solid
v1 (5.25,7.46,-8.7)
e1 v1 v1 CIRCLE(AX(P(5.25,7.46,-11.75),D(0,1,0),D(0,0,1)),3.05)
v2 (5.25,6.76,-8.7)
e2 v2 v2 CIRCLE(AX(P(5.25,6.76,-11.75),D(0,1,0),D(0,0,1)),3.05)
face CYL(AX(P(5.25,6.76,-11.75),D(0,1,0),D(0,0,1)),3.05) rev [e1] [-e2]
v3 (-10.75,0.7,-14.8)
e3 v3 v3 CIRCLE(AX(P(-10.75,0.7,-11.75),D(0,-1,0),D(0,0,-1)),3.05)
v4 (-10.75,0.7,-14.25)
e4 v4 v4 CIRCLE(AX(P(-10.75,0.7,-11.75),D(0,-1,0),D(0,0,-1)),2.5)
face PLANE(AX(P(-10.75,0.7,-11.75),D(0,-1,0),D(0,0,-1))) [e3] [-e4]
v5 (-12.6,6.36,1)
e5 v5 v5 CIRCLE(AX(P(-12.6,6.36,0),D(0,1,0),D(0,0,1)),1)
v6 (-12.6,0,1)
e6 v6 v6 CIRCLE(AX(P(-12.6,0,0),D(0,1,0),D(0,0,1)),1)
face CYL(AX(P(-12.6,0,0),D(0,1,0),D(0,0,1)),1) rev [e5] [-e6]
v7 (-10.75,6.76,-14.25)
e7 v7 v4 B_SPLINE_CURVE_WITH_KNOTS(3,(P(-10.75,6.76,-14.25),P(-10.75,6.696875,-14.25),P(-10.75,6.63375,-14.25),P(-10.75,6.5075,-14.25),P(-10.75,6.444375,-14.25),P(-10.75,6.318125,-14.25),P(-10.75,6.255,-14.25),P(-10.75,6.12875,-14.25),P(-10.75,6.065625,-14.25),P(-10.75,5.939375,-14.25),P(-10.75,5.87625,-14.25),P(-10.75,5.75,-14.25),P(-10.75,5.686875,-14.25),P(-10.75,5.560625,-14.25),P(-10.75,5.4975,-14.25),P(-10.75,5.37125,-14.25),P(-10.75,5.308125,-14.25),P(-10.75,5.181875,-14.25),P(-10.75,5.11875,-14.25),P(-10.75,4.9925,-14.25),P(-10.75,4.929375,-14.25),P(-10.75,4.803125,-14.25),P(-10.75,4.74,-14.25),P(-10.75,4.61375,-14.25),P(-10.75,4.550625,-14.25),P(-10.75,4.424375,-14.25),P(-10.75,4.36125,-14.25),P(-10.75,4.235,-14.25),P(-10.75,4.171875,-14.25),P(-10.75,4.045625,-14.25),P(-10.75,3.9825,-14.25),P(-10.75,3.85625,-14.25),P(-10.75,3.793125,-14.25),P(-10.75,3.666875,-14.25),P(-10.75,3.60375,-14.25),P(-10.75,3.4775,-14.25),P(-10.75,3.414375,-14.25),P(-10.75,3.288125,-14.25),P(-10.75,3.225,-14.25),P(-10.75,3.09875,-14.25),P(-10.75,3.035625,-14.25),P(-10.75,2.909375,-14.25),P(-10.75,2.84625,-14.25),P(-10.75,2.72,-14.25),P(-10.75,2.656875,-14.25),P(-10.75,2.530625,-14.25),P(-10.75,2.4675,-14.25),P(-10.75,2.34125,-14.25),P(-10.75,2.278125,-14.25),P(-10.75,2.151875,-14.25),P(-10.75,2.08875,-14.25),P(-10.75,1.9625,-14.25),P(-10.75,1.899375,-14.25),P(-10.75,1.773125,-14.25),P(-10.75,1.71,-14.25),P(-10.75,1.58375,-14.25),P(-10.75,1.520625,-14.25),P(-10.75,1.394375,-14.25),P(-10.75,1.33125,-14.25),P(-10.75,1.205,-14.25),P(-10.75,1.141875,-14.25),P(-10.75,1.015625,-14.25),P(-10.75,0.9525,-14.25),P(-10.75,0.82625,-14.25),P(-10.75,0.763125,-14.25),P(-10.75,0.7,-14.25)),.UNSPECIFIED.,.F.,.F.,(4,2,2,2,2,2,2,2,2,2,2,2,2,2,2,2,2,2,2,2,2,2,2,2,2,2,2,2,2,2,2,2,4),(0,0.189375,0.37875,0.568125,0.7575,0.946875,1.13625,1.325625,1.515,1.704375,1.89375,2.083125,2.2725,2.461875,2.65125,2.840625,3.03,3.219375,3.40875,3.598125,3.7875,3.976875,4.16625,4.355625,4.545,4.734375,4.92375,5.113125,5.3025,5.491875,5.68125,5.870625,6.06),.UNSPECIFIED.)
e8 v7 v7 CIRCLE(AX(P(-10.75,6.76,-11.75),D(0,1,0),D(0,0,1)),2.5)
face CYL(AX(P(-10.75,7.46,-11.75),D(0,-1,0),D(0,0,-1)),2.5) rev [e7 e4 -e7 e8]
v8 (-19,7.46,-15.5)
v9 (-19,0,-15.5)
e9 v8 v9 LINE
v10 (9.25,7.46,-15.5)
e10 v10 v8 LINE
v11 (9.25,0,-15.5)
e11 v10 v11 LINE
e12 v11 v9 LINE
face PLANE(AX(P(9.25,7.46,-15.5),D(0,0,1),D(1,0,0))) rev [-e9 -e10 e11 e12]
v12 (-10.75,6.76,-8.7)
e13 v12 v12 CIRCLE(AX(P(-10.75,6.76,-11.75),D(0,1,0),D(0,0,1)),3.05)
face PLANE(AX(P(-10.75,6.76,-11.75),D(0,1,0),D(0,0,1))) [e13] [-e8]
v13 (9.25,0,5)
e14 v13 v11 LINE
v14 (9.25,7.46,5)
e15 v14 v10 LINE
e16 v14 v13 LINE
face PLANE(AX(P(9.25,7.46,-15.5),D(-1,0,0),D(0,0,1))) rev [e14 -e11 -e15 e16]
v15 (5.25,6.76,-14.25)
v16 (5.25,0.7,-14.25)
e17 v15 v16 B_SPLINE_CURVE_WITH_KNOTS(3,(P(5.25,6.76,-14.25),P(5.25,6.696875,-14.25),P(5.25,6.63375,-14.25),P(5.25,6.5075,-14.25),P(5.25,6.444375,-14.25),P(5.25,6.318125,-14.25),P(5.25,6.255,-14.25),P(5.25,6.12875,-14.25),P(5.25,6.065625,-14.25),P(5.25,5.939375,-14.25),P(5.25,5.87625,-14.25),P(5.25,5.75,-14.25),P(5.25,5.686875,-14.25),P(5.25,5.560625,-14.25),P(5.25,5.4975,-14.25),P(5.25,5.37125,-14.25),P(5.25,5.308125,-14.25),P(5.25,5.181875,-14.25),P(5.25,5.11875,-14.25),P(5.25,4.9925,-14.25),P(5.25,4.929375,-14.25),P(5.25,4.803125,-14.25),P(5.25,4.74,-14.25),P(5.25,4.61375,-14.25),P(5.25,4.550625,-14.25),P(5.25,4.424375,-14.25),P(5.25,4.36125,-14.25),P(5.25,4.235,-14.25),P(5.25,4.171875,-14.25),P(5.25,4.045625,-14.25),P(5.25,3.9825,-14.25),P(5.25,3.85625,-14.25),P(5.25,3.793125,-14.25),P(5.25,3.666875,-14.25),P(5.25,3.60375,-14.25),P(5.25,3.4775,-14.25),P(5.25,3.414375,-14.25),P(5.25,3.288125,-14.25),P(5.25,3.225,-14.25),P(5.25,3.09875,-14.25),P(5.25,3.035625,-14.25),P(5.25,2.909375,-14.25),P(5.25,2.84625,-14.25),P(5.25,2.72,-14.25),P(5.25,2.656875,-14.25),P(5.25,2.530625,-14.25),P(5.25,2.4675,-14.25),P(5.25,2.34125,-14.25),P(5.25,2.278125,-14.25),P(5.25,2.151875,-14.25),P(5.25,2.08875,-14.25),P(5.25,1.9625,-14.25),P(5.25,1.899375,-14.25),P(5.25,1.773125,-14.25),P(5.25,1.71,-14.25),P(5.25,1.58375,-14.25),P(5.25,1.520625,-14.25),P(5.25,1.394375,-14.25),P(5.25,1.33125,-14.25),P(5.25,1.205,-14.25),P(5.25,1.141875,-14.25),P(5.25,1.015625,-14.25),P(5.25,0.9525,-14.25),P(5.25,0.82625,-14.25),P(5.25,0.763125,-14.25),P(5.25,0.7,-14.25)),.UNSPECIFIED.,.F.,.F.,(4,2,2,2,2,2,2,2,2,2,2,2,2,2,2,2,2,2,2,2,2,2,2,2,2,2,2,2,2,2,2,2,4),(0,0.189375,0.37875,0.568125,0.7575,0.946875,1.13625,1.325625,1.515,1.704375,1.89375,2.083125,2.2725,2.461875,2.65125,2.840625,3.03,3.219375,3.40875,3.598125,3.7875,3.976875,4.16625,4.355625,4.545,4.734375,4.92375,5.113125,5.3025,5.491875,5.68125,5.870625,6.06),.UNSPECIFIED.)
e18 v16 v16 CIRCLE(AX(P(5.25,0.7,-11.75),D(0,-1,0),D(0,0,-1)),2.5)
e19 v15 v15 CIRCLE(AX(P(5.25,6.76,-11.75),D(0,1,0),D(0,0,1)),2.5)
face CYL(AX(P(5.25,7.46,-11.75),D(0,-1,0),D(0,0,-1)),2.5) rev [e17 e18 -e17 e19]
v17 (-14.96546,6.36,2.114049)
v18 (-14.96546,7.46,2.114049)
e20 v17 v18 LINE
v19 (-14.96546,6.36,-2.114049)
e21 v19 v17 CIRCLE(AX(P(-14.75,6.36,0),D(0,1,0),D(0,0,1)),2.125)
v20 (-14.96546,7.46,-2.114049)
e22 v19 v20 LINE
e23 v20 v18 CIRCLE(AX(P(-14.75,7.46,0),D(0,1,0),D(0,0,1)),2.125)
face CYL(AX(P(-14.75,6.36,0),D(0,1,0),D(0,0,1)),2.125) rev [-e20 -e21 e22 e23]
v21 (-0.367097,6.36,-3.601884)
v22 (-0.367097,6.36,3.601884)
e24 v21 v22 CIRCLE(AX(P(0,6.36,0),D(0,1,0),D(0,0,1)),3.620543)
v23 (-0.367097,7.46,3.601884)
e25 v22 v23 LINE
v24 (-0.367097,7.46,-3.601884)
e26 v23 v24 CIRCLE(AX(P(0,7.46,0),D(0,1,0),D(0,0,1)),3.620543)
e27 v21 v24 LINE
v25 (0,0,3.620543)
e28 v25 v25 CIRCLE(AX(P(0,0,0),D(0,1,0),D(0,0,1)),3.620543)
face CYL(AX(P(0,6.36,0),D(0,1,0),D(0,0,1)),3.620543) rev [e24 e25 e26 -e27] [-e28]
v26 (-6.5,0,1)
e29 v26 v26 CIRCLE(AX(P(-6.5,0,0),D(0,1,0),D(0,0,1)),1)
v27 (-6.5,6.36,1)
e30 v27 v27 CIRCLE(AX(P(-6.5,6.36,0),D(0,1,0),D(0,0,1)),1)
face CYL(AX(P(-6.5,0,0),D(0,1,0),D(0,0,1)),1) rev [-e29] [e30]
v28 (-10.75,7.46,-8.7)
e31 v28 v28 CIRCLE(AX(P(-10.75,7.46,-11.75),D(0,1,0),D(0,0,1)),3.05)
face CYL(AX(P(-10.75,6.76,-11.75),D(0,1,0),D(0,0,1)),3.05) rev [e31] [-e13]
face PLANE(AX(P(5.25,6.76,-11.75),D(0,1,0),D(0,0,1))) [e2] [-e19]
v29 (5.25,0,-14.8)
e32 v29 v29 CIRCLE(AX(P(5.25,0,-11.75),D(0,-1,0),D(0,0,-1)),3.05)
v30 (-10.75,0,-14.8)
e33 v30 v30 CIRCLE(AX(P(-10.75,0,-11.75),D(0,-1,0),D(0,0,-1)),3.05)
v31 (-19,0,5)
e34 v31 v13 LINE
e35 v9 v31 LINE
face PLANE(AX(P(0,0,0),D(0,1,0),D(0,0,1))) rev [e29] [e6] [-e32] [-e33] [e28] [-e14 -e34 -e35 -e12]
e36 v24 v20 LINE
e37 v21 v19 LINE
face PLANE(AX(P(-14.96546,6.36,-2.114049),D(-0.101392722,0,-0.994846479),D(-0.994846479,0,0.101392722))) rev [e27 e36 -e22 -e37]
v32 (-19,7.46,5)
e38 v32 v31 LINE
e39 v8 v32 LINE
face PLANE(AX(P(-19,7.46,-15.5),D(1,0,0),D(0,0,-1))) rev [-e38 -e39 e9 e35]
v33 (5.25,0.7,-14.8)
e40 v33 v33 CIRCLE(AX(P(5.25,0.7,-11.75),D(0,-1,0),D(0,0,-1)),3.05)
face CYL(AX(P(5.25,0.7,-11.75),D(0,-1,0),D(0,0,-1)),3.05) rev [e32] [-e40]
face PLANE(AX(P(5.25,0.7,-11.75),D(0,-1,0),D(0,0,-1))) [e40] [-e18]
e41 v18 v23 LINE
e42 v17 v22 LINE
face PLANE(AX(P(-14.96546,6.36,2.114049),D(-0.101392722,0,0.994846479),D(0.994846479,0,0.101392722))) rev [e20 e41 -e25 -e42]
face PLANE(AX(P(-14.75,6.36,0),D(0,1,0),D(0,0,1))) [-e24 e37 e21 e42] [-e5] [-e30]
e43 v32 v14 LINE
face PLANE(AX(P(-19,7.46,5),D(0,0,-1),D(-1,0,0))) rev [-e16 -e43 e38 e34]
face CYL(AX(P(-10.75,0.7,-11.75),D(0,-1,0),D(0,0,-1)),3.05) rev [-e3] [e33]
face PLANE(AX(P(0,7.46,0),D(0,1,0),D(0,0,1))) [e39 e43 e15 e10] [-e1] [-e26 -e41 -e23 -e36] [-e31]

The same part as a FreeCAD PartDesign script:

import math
import FreeCAD as App
import Part
import Sketcher
from FreeCAD import Vector


def add_polygon(sketch, points):
    """Adds a closed chain of lines whose ends are joined by coincident constraints."""
    first, n = sketch.GeometryCount, len(points)
    for a, b in zip(points, points[1:] + points[:1]):
        sketch.addGeometry(Part.LineSegment(App.Vector(*a, 0), App.Vector(*b, 0)), False)
    for i in range(n):
        sketch.addConstraint(Sketcher.Constraint("Coincident", first + i, 2, first + (i + 1) % n, 1))

doc = App.newDocument("Part")
body = doc.addObject("PartDesign::Body", "Body")

# Sketch on XZ plane
sketch1 = doc.addObject("Sketcher::SketchObject", "Sketch")
body.addObject(sketch1)
sketch1.AttachmentSupport = (doc.XZ_Plane, [""])
sketch1.MapMode = "FlatFace"
add_polygon(sketch1, [(-19, -15.5), (-19, 5), (9.2, 5), (9.2, -15.5)])  # lines 0-3
sketch1.addGeometry(Part.Circle(Vector(-10.8, -11.8, 0), Vector(0, 0, 1), 2.5), False)  # 4
sketch1.addGeometry(Part.Circle(Vector(5.2, -11.8, 0), Vector(0, 0, 1), 2.5), False)  # 5
sketch1.addConstraint([
    Sketcher.Constraint("Vertical", 0),
    Sketcher.Constraint("Horizontal", 1),
    Sketcher.Constraint("Vertical", 2),
    Sketcher.Constraint("Horizontal", 3),
    Sketcher.Constraint("Equal", 4, 5),
    Sketcher.Constraint("Horizontal", 4, 3, 5, 3),
    Sketcher.Constraint("Diameter", 4, 5.0),
    Sketcher.Constraint("DistanceY", 0, 1, 0, 2, 20.5),
    Sketcher.Constraint("DistanceX", 0, 2, -1, 1, 19.0),
    Sketcher.Constraint("DistanceY", -1, 1, 0, 2, 5.0),
    Sketcher.Constraint("DistanceX", 4, 3, 5, 3, 16.0),
    Sketcher.Constraint("DistanceX", 5, 3, 1, 2, 4.0),
    Sketcher.Constraint("DistanceX", 1, 1, 1, 2, 28.25),
    Sketcher.Constraint("DistanceY", 4, 3, -1, 1, 11.75),
])
pad1 = doc.addObject("PartDesign::Pad", "Pad")
body.addObject(pad1)
pad1.Profile = sketch1
pad1.Length = 7.46
pad1.Reversed = True

# Sketch on XZ plane
sketch2 = doc.addObject("Sketcher::SketchObject", "Sketch001")
body.addObject(sketch2)
sketch2.AttachmentSupport = (doc.XZ_Plane, [""])
sketch2.MapMode = "FlatFace"
sketch2.AttachmentOffset = App.Placement(Vector(0, 0, -7.46), App.Rotation())
sketch2.addGeometry([
    Part.LineSegment(Vector(-0.4, -3.6, 0), Vector(-15, -2.1, 0)),
    Part.ArcOfCircle(Part.Circle(Vector(-14.8, 0, 0), Vector(0, 0, 1), 2.1), math.radians(96), math.radians(264)),
    Part.LineSegment(Vector(-15, 2.1, 0), Vector(-0.4, 3.6, 0)),
    Part.ArcOfCircle(Part.Circle(Vector(0, 0, 0), Vector(0, 0, 1), 3.6), math.radians(-96), math.radians(96)),
], False)
sketch2.addConstraint([
    Sketcher.Constraint("Tangent", 0, 2, 1, 2),
    Sketcher.Constraint("Tangent", 1, 1, 2, 1),
    Sketcher.Constraint("Tangent", 2, 2, 3, 2),
    Sketcher.Constraint("Tangent", 3, 1, 0, 1),
    Sketcher.Constraint("Coincident", 3, 3, -1, 1),
    Sketcher.Constraint("PointOnObject", 1, 3, -1),
    Sketcher.Constraint("Radius", 1, 2.125),
    Sketcher.Constraint("DistanceX", 1, 3, -1, 1, 14.75),
    Sketcher.Constraint("Radius", 3, 3.620543),
])
pocket1 = doc.addObject("PartDesign::Pocket", "Pocket")
body.addObject(pocket1)
pocket1.Profile = sketch2
pocket1.Length = 1.1
pocket1.Reversed = True

# Sketch on XZ plane
sketch3 = doc.addObject("Sketcher::SketchObject", "Sketch002")
body.addObject(sketch3)
sketch3.AttachmentSupport = (doc.XZ_Plane, [""])
sketch3.MapMode = "FlatFace"
sketch3.AttachmentOffset = App.Placement(Vector(0, 0, -6.36), App.Rotation())
sketch3.addGeometry([
    Part.Circle(Vector(-12.6, 0, 0), Vector(0, 0, 1), 1),
    Part.Circle(Vector(-6.5, 0, 0), Vector(0, 0, 1), 1),
    Part.Circle(Vector(0, 0, 0), Vector(0, 0, 1), 3.6),
], False)
sketch3.addConstraint([
    Sketcher.Constraint("Coincident", 2, 3, -1, 1),
    Sketcher.Constraint("Equal", 0, 1),
    Sketcher.Constraint("PointOnObject", 0, 3, -1),
    Sketcher.Constraint("PointOnObject", 1, 3, -1),
    Sketcher.Constraint("Diameter", 0, 2.0),
    Sketcher.Constraint("DistanceX", 0, 3, -1, 1, 12.6),
    Sketcher.Constraint("DistanceX", 1, 3, -1, 1, 6.5),
    Sketcher.Constraint("Diameter", 2, 7.241085),
])
pocket2 = doc.addObject("PartDesign::Pocket", "Pocket001")
body.addObject(pocket2)
pocket2.Profile = sketch3
pocket2.Type = "ThroughAll"
pocket2.Reversed = True

# Sketch on XZ plane
sketch4 = doc.addObject("Sketcher::SketchObject", "Sketch003")
body.addObject(sketch4)
sketch4.AttachmentSupport = (doc.XZ_Plane, [""])
sketch4.MapMode = "FlatFace"
sketch4.AttachmentOffset = App.Placement(Vector(0, 0, -7.46), App.Rotation())
sketch4.addGeometry([
    Part.Circle(Vector(-10.8, -11.8, 0), Vector(0, 0, 1), 3),
    Part.Circle(Vector(5.2, -11.8, 0), Vector(0, 0, 1), 3),
], False)
sketch4.addConstraint([
    Sketcher.Constraint("Equal", 0, 1),
    Sketcher.Constraint("Horizontal", 0, 3, 1, 3),
    Sketcher.Constraint("Diameter", 0, 6.1),
    Sketcher.Constraint("DistanceX", 0, 3, 1, 3, 16.0),
    Sketcher.Constraint("DistanceX", 0, 3, -1, 1, 10.75),
    Sketcher.Constraint("DistanceY", 0, 3, -1, 1, 11.75),
])
pocket3 = doc.addObject("PartDesign::Pocket", "Pocket002")
body.addObject(pocket3)
pocket3.Profile = sketch4
pocket3.Length = 0.7
pocket3.Reversed = True

# Sketch on XZ plane
sketch5 = doc.addObject("Sketcher::SketchObject", "Sketch004")
body.addObject(sketch5)
sketch5.AttachmentSupport = (doc.XZ_Plane, [""])
sketch5.MapMode = "FlatFace"
sketch5.AttachmentOffset = App.Placement(Vector(0, 0, -0.7), App.Rotation())
sketch5.addGeometry([
    Part.Circle(Vector(5.2, -11.8, 0), Vector(0, 0, 1), 3),
    Part.Circle(Vector(-10.8, -11.8, 0), Vector(0, 0, 1), 3),
], False)
sketch5.addConstraint([
    Sketcher.Constraint("Equal", 0, 1),
    Sketcher.Constraint("Horizontal", 0, 3, 1, 3),
    Sketcher.Constraint("Diameter", 0, 6.1),
    Sketcher.Constraint("DistanceX", 1, 3, 0, 3, 16.0),
    Sketcher.Constraint("DistanceX", -1, 1, 0, 3, 5.25),
    Sketcher.Constraint("DistanceY", 0, 3, -1, 1, 11.75),
])
pocket4 = doc.addObject("PartDesign::Pocket", "Pocket003")
body.addObject(pocket4)
pocket4.Profile = sketch5
pocket4.Length = 0.7
pocket4.Reversed = True

doc.recompute()
